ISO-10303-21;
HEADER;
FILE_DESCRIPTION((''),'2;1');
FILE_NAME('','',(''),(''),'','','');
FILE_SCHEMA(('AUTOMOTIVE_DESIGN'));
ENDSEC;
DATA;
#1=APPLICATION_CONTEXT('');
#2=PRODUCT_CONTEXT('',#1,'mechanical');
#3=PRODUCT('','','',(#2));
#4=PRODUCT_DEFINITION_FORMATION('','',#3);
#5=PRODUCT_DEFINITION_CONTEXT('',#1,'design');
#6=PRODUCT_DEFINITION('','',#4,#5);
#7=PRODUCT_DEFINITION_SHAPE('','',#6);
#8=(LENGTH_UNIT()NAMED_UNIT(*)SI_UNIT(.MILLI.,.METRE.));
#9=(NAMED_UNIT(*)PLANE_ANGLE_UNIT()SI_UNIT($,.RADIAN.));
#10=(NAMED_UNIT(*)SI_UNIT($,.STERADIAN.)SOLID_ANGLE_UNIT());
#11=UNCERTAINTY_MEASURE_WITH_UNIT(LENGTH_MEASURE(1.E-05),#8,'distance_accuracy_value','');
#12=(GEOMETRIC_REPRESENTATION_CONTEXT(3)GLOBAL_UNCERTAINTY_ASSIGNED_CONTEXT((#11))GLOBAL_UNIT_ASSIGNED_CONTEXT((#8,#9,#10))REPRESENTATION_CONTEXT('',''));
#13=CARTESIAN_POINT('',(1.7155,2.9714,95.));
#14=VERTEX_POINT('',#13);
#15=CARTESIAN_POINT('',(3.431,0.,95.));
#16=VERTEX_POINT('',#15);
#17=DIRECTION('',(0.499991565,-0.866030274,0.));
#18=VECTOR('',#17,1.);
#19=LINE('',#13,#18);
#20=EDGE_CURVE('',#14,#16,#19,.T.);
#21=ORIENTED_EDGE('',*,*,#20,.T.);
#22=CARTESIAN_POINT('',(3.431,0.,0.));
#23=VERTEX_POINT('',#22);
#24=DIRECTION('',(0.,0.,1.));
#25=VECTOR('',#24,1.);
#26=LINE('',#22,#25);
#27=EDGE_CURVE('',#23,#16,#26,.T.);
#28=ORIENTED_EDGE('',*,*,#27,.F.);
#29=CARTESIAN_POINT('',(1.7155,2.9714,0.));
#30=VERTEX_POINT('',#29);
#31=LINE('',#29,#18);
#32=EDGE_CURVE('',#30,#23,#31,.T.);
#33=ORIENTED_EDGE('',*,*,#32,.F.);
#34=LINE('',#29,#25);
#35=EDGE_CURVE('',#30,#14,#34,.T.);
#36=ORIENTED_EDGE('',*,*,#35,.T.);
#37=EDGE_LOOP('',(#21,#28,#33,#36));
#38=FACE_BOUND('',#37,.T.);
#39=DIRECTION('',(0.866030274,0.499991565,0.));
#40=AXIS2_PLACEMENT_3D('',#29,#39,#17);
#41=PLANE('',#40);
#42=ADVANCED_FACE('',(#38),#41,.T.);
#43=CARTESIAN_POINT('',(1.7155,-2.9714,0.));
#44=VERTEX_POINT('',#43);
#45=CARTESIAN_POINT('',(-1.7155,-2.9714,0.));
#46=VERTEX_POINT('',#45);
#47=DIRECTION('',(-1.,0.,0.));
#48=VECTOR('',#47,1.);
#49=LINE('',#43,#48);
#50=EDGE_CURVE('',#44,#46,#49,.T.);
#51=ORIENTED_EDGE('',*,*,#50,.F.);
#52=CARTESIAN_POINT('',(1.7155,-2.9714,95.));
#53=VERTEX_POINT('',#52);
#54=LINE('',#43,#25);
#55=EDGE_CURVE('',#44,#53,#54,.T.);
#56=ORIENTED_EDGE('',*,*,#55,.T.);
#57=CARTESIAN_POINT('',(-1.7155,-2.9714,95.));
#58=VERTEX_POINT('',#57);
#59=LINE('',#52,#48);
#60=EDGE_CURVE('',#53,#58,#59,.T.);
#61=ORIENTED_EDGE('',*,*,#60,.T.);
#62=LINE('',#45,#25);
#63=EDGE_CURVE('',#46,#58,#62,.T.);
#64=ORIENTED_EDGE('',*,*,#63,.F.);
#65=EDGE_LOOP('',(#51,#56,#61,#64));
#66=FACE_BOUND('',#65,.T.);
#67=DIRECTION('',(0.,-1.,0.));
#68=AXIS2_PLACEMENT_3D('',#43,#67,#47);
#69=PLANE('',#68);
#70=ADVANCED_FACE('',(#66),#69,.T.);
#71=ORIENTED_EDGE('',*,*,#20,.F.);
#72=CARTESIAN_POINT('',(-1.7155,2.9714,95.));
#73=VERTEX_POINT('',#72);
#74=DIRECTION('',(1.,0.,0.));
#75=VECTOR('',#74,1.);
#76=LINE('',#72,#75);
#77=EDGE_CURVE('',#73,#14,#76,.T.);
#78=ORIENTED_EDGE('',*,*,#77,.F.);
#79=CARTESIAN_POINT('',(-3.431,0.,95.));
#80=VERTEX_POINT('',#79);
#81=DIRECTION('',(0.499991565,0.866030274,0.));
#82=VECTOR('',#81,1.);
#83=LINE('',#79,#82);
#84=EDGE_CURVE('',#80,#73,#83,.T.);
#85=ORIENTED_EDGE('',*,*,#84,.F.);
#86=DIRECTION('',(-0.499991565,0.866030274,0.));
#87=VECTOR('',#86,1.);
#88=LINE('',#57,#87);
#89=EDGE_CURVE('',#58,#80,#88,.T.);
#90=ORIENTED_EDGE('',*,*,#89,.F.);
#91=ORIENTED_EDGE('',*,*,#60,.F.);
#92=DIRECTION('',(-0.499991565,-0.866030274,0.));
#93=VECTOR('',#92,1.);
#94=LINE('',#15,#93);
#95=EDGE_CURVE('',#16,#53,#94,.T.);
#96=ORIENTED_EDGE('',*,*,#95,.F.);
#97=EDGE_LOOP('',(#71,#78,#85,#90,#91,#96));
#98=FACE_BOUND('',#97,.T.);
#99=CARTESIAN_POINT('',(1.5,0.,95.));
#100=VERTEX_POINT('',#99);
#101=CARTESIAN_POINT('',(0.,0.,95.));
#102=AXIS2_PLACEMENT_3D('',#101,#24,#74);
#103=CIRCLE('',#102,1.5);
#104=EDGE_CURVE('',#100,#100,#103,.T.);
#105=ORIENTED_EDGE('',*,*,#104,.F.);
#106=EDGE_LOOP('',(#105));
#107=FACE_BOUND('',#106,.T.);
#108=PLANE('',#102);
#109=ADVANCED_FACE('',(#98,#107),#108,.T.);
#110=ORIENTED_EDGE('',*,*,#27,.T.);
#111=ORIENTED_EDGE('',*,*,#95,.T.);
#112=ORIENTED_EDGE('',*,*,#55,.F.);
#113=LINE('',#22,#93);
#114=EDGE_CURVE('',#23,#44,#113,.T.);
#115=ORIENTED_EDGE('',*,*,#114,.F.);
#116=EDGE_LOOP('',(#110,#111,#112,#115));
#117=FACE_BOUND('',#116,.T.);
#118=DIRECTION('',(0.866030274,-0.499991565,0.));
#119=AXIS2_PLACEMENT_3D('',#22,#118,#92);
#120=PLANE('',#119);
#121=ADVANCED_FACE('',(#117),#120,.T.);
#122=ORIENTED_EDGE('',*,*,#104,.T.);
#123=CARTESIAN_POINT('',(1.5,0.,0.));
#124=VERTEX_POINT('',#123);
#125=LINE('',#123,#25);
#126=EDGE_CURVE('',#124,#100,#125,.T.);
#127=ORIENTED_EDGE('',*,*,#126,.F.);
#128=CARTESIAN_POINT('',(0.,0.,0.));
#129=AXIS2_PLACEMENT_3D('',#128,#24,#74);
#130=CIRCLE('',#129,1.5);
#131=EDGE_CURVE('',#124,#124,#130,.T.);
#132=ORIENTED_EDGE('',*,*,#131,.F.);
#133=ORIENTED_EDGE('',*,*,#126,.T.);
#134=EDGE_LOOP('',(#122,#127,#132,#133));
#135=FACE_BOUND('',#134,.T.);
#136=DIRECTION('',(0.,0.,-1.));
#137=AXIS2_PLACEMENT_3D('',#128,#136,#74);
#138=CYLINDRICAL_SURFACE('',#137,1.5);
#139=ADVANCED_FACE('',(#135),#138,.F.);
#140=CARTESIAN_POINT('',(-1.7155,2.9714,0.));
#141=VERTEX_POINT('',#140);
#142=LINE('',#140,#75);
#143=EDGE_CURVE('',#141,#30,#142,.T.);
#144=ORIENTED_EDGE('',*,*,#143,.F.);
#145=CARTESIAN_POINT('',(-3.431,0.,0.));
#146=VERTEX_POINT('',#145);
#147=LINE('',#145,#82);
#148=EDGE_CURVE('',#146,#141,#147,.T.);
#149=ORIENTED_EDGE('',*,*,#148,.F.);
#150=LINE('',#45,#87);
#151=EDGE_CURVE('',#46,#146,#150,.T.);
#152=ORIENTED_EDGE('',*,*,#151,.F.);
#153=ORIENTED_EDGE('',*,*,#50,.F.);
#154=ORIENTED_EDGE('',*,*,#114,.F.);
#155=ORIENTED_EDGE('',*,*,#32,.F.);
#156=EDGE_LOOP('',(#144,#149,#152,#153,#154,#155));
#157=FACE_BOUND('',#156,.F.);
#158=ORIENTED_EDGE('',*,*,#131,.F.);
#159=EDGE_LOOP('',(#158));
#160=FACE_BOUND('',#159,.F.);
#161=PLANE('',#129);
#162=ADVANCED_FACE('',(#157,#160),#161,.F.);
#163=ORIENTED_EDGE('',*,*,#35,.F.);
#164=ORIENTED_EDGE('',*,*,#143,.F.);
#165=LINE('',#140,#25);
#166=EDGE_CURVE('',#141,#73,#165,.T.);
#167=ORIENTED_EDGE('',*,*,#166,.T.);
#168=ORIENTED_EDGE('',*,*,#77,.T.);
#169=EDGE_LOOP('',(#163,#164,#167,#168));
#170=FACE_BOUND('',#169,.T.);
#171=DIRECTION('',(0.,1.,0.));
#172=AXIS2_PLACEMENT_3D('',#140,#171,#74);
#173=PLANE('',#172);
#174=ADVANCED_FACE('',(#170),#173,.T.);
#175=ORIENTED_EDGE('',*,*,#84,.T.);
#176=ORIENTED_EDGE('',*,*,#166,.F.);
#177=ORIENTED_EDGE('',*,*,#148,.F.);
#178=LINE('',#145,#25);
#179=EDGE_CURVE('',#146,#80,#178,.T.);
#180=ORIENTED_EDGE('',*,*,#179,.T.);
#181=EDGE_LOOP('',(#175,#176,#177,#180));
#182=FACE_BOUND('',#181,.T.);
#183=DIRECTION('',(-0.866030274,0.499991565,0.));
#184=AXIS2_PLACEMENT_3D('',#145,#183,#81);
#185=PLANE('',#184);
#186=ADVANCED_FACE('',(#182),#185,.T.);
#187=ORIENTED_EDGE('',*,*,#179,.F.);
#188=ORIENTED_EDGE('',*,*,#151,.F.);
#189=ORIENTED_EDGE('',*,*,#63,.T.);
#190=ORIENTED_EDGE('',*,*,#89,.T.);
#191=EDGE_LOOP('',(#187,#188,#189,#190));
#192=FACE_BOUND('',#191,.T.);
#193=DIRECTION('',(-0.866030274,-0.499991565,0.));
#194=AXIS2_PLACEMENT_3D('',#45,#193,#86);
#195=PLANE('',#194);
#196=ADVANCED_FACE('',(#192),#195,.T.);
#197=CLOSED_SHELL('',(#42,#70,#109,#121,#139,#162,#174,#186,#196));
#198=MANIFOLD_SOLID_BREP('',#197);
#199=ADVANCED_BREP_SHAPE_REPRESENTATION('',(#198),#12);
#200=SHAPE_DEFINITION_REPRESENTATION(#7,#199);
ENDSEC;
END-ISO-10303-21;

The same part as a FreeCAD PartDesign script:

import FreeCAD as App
import Part
import Sketcher
from FreeCAD import Vector
Q = App.Units.Quantity

doc = App.newDocument("Part")
body = doc.addObject("PartDesign::Body", "Body")

sketch1 = body.newObject("Sketcher::SketchObject", "Sketch")
sketch1.AttachmentSupport = (doc.getObject("XY_Plane"), [""])
sketch1.MapMode = "FlatFace"
sketch1.addGeometry(Part.LineSegment(Vector(1.7, -3, 0), Vector(3.4, 0, 0)), False)
sketch1.addGeometry(Part.LineSegment(Vector(3.4, 0, 0), Vector(1.7, 3, 0)), False)
sketch1.addGeometry(Part.LineSegment(Vector(1.7, 3, 0), Vector(-1.7, 3, 0)), False)
sketch1.addGeometry(Part.LineSegment(Vector(-1.7, 3, 0), Vector(-3.4, 0, 0)), False)
sketch1.addGeometry(Part.LineSegment(Vector(-3.4, 0, 0), Vector(-1.7, -3, 0)), False)
sketch1.addGeometry(Part.LineSegment(Vector(-1.7, -3, 0), Vector(1.7, -3, 0)), False)
sketch1.addGeometry(Part.Circle(Vector(0, 0, 0), Vector(0, 0, 1), 1.5), False)
sketch1.addConstraint(Sketcher.Constraint("Coincident", 0, 2, 1, 1))
sketch1.addConstraint(Sketcher.Constraint("Coincident", 1, 2, 2, 1))
sketch1.addConstraint(Sketcher.Constraint("Coincident", 2, 2, 3, 1))
sketch1.addConstraint(Sketcher.Constraint("Coincident", 3, 2, 4, 1))
sketch1.addConstraint(Sketcher.Constraint("Coincident", 4, 2, 5, 1))
sketch1.addConstraint(Sketcher.Constraint("Coincident", 5, 2, 0, 1))
sketch1.addConstraint(Sketcher.Constraint("Horizontal", 2))
sketch1.addConstraint(Sketcher.Constraint("Horizontal", 5))
sketch1.addConstraint(Sketcher.Constraint("Coincident", 6, 3, -1, 1))
sketch1.addConstraint(Sketcher.Constraint("Symmetric", 0, 2, 3, 2, -1, 1))
sketch1.addConstraint(Sketcher.Constraint("Symmetric", 1, 2, 4, 2, -1, 1))
sketch1.addConstraint(Sketcher.Constraint("PointOnObject", 0, 2, -1))
sketch1.addConstraint(Sketcher.Constraint("Parallel", 0, 3))
sketch1.addConstraint(Sketcher.Constraint("Vertical", 2, 2, 4, 2))
sketch1.addConstraint(Sketcher.Constraint("Diameter", 6, Q("3 mm")))
sketch1.addConstraint(Sketcher.Constraint("Angle", 0, Q("60.0006 deg")))
sketch1.addConstraint(Sketcher.Constraint("DistanceX", 2, 2, 2, 1, Q("3.431 mm")))
sketch1.addConstraint(Sketcher.Constraint("Distance", 0, Q("3.431 mm")))
pad1 = body.newObject("PartDesign::Pad", "Pad")
pad1.Profile = sketch1
pad1.Length = 95

doc.recompute()
